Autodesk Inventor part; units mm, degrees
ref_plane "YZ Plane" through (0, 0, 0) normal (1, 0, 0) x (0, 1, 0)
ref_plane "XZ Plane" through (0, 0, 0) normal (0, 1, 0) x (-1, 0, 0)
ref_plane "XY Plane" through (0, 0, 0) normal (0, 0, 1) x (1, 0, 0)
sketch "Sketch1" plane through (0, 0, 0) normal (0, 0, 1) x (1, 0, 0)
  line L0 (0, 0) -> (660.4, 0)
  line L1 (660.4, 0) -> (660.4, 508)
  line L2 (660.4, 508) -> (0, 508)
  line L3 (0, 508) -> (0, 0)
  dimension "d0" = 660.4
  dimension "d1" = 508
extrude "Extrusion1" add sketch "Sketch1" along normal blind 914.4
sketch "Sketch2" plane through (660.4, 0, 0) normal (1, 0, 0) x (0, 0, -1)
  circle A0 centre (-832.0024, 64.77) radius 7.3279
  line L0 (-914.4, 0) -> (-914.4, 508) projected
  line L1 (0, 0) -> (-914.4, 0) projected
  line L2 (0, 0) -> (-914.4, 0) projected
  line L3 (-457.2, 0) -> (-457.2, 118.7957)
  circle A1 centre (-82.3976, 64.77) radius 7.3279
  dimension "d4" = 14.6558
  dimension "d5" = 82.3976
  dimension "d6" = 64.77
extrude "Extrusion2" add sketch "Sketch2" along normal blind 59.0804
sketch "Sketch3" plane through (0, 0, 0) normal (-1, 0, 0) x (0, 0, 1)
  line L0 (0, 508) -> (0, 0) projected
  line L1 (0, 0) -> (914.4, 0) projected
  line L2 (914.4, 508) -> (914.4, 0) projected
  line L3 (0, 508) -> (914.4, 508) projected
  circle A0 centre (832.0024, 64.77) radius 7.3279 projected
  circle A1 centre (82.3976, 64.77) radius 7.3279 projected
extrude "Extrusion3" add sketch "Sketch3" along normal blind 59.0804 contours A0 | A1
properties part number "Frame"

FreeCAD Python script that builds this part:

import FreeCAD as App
import Part
import Sketcher
from FreeCAD import Vector
Q = App.Units.Quantity

doc = App.newDocument("Part")
body = doc.addObject("PartDesign::Body", "Body")

sketch1 = body.newObject("Sketcher::SketchObject", "Sketch")
sketch1.AttachmentSupport = (doc.getObject("XY_Plane"), [""])
sketch1.MapMode = "FlatFace"
sketch1.addGeometry(Part.LineSegment(Vector(0, 508, 0), Vector(0, 0, 0)), False)
sketch1.addGeometry(Part.LineSegment(Vector(0, 0, 0), Vector(660.4, 0, 0)), False)
sketch1.addGeometry(Part.LineSegment(Vector(660.4, 0, 0), Vector(660.4, 508, 0)), False)
sketch1.addGeometry(Part.LineSegment(Vector(660.4, 508, 0), Vector(0, 508, 0)), False)
sketch1.addConstraint(Sketcher.Constraint("Coincident", 0, 2, 1, 1))
sketch1.addConstraint(Sketcher.Constraint("Coincident", 1, 2, 2, 1))
sketch1.addConstraint(Sketcher.Constraint("Coincident", 2, 2, 3, 1))
sketch1.addConstraint(Sketcher.Constraint("Coincident", 3, 2, 0, 1))
sketch1.addConstraint(Sketcher.Constraint("Vertical", 0))
sketch1.addConstraint(Sketcher.Constraint("Horizontal", 1))
sketch1.addConstraint(Sketcher.Constraint("Vertical", 2))
sketch1.addConstraint(Sketcher.Constraint("Horizontal", 3))
sketch1.addConstraint(Sketcher.Constraint("Coincident", 0, 2, -1, 1))
sketch1.addConstraint(Sketcher.Constraint("DistanceX", 1, 1, 1, 2, Q("26 in")))
sketch1.addConstraint(Sketcher.Constraint("DistanceY", 0, 2, 0, 1, Q("20 in")))
pad1 = body.newObject("PartDesign::Pad", "Pad")
pad1.Profile = sketch1
pad1.Length = Q("36 in")

sketch2 = body.newObject("Sketcher::SketchObject", "Sketch001")
sketch2.AttachmentSupport = (doc.getObject("YZ_Plane"), [""])
sketch2.MapMode = "FlatFace"
sketch2.AttachmentOffset = App.Placement(Vector(0, 0, 26 * 25.4), App.Rotation())
sketch2.addGeometry(Part.Circle(Vector(64.77, 832.0024, 0), Vector(0, 0, 1), 7.3279), False)
sketch2.addGeometry(Part.Circle(Vector(64.77, 82.3976, 0), Vector(0, 0, 1), 7.3279), False)
sketch2.addConstraint(Sketcher.Constraint("Equal", 0, 1))
sketch2.addConstraint(Sketcher.Constraint("Vertical", 0, 3, 1, 3))
sketch2.addConstraint(Sketcher.Constraint("Diameter", 0, Q("0.577 in")))
sketch2.addConstraint(Sketcher.Constraint("DistanceX", -1, 1, 0, 3, Q("2.55 in")))
sketch2.addConstraint(Sketcher.Constraint("DistanceY", -1, 1, 1, 3, Q("3.244 in")))
sketch2.addConstraint(Sketcher.Constraint("DistanceY", -1, 1, 0, 3, Q("32.756 in")))
pad2 = body.newObject("PartDesign::Pad", "Pad001")
pad2.Profile = sketch2
pad2.Length = Q("2.326 in")

sketch3 = body.newObject("Sketcher::SketchObject", "Sketch002")
sketch3.AttachmentSupport = (doc.getObject("YZ_Plane"), [""])
sketch3.MapMode = "FlatFace"
sketch3.addGeometry(Part.Circle(Vector(64.77, 832.0024, 0), Vector(0, 0, 1), 7.3279), False)
sketch3.addGeometry(Part.Circle(Vector(64.77, 82.3976, 0), Vector(0, 0, 1), 7.3279), False)
sketch3.addConstraint(Sketcher.Constraint("Equal", 0, 1))
sketch3.addConstraint(Sketcher.Constraint("Vertical", 0, 3, 1, 3))
sketch3.addConstraint(Sketcher.Constraint("Diameter", 0, Q("0.577 in")))
sketch3.addConstraint(Sketcher.Constraint("DistanceX", -1, 1, 0, 3, Q("2.55 in")))
sketch3.addConstraint(Sketcher.Constraint("DistanceY", -1, 1, 0, 3, Q("32.756 in")))
sketch3.addConstraint(Sketcher.Constraint("DistanceY", -1, 1, 1, 3, Q("3.244 in")))
pad3 = body.newObject("PartDesign::Pad", "Pad002")
pad3.Profile = sketch3
pad3.Length = Q("2.326 in")
pad3.Reversed = True

doc.recompute()
